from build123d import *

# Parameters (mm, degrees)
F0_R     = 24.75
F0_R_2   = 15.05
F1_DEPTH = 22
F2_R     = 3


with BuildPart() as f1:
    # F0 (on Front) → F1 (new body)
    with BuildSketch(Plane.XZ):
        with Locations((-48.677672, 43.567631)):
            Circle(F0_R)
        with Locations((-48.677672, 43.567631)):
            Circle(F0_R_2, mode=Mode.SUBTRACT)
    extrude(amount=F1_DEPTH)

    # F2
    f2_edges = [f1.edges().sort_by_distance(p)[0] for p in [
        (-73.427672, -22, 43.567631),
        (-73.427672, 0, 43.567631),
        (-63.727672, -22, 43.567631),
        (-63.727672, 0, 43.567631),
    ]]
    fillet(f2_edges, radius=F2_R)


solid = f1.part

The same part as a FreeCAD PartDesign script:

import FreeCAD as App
import Part
import Sketcher


def edges_at(feature, points):
    """Names of the edges that pass closest to the given points."""
    edges = feature.Shape.Edges
    near = lambda p: min(range(len(edges)), key=lambda i: edges[i].distToShape(Part.Vertex(*p))[0])
    return sorted({f"Edge{near(p) + 1}" for p in points})

doc = App.newDocument("Part")
body = doc.addObject("PartDesign::Body", "Body")

sketch1 = body.newObject("Sketcher::SketchObject", "Sketch")
sketch1.AttachmentSupport = (doc.getObject("XZ_Plane"), [""])
sketch1.MapMode = "FlatFace"
sketch1.addGeometry([
    Part.Circle(App.Vector(-49, 44, 0), App.Vector(0, 0, 1), 25),
    Part.Circle(App.Vector(-49, 44, 0), App.Vector(0, 0, 1), 15),
], False)
sketch1.addConstraint([
    Sketcher.Constraint("Coincident", 1, 3, 0, 3),
    Sketcher.Constraint("Diameter", 0, 49.5),
    Sketcher.Constraint("Diameter", 1, 30.1),
    Sketcher.Constraint("DistanceY", -1, 1, 0, 3, 43.567631),
    Sketcher.Constraint("DistanceX", 0, 3, -1, 1, 48.677672),
])
pad1 = body.newObject("PartDesign::Pad", "Pad")
pad1.Profile = sketch1
pad1.Length = 22
doc.recompute()

fillet = body.newObject("PartDesign::Fillet", "Fillet")
fillet.Base = (pad1, edges_at(pad1, [
    (-73.428, -22, 43.568),
    (-73.428, 0, 43.568),
    (-63.728, -22, 43.568),
    (-63.728, 0, 43.568),
]))
fillet.Radius = 3

doc.recompute()
